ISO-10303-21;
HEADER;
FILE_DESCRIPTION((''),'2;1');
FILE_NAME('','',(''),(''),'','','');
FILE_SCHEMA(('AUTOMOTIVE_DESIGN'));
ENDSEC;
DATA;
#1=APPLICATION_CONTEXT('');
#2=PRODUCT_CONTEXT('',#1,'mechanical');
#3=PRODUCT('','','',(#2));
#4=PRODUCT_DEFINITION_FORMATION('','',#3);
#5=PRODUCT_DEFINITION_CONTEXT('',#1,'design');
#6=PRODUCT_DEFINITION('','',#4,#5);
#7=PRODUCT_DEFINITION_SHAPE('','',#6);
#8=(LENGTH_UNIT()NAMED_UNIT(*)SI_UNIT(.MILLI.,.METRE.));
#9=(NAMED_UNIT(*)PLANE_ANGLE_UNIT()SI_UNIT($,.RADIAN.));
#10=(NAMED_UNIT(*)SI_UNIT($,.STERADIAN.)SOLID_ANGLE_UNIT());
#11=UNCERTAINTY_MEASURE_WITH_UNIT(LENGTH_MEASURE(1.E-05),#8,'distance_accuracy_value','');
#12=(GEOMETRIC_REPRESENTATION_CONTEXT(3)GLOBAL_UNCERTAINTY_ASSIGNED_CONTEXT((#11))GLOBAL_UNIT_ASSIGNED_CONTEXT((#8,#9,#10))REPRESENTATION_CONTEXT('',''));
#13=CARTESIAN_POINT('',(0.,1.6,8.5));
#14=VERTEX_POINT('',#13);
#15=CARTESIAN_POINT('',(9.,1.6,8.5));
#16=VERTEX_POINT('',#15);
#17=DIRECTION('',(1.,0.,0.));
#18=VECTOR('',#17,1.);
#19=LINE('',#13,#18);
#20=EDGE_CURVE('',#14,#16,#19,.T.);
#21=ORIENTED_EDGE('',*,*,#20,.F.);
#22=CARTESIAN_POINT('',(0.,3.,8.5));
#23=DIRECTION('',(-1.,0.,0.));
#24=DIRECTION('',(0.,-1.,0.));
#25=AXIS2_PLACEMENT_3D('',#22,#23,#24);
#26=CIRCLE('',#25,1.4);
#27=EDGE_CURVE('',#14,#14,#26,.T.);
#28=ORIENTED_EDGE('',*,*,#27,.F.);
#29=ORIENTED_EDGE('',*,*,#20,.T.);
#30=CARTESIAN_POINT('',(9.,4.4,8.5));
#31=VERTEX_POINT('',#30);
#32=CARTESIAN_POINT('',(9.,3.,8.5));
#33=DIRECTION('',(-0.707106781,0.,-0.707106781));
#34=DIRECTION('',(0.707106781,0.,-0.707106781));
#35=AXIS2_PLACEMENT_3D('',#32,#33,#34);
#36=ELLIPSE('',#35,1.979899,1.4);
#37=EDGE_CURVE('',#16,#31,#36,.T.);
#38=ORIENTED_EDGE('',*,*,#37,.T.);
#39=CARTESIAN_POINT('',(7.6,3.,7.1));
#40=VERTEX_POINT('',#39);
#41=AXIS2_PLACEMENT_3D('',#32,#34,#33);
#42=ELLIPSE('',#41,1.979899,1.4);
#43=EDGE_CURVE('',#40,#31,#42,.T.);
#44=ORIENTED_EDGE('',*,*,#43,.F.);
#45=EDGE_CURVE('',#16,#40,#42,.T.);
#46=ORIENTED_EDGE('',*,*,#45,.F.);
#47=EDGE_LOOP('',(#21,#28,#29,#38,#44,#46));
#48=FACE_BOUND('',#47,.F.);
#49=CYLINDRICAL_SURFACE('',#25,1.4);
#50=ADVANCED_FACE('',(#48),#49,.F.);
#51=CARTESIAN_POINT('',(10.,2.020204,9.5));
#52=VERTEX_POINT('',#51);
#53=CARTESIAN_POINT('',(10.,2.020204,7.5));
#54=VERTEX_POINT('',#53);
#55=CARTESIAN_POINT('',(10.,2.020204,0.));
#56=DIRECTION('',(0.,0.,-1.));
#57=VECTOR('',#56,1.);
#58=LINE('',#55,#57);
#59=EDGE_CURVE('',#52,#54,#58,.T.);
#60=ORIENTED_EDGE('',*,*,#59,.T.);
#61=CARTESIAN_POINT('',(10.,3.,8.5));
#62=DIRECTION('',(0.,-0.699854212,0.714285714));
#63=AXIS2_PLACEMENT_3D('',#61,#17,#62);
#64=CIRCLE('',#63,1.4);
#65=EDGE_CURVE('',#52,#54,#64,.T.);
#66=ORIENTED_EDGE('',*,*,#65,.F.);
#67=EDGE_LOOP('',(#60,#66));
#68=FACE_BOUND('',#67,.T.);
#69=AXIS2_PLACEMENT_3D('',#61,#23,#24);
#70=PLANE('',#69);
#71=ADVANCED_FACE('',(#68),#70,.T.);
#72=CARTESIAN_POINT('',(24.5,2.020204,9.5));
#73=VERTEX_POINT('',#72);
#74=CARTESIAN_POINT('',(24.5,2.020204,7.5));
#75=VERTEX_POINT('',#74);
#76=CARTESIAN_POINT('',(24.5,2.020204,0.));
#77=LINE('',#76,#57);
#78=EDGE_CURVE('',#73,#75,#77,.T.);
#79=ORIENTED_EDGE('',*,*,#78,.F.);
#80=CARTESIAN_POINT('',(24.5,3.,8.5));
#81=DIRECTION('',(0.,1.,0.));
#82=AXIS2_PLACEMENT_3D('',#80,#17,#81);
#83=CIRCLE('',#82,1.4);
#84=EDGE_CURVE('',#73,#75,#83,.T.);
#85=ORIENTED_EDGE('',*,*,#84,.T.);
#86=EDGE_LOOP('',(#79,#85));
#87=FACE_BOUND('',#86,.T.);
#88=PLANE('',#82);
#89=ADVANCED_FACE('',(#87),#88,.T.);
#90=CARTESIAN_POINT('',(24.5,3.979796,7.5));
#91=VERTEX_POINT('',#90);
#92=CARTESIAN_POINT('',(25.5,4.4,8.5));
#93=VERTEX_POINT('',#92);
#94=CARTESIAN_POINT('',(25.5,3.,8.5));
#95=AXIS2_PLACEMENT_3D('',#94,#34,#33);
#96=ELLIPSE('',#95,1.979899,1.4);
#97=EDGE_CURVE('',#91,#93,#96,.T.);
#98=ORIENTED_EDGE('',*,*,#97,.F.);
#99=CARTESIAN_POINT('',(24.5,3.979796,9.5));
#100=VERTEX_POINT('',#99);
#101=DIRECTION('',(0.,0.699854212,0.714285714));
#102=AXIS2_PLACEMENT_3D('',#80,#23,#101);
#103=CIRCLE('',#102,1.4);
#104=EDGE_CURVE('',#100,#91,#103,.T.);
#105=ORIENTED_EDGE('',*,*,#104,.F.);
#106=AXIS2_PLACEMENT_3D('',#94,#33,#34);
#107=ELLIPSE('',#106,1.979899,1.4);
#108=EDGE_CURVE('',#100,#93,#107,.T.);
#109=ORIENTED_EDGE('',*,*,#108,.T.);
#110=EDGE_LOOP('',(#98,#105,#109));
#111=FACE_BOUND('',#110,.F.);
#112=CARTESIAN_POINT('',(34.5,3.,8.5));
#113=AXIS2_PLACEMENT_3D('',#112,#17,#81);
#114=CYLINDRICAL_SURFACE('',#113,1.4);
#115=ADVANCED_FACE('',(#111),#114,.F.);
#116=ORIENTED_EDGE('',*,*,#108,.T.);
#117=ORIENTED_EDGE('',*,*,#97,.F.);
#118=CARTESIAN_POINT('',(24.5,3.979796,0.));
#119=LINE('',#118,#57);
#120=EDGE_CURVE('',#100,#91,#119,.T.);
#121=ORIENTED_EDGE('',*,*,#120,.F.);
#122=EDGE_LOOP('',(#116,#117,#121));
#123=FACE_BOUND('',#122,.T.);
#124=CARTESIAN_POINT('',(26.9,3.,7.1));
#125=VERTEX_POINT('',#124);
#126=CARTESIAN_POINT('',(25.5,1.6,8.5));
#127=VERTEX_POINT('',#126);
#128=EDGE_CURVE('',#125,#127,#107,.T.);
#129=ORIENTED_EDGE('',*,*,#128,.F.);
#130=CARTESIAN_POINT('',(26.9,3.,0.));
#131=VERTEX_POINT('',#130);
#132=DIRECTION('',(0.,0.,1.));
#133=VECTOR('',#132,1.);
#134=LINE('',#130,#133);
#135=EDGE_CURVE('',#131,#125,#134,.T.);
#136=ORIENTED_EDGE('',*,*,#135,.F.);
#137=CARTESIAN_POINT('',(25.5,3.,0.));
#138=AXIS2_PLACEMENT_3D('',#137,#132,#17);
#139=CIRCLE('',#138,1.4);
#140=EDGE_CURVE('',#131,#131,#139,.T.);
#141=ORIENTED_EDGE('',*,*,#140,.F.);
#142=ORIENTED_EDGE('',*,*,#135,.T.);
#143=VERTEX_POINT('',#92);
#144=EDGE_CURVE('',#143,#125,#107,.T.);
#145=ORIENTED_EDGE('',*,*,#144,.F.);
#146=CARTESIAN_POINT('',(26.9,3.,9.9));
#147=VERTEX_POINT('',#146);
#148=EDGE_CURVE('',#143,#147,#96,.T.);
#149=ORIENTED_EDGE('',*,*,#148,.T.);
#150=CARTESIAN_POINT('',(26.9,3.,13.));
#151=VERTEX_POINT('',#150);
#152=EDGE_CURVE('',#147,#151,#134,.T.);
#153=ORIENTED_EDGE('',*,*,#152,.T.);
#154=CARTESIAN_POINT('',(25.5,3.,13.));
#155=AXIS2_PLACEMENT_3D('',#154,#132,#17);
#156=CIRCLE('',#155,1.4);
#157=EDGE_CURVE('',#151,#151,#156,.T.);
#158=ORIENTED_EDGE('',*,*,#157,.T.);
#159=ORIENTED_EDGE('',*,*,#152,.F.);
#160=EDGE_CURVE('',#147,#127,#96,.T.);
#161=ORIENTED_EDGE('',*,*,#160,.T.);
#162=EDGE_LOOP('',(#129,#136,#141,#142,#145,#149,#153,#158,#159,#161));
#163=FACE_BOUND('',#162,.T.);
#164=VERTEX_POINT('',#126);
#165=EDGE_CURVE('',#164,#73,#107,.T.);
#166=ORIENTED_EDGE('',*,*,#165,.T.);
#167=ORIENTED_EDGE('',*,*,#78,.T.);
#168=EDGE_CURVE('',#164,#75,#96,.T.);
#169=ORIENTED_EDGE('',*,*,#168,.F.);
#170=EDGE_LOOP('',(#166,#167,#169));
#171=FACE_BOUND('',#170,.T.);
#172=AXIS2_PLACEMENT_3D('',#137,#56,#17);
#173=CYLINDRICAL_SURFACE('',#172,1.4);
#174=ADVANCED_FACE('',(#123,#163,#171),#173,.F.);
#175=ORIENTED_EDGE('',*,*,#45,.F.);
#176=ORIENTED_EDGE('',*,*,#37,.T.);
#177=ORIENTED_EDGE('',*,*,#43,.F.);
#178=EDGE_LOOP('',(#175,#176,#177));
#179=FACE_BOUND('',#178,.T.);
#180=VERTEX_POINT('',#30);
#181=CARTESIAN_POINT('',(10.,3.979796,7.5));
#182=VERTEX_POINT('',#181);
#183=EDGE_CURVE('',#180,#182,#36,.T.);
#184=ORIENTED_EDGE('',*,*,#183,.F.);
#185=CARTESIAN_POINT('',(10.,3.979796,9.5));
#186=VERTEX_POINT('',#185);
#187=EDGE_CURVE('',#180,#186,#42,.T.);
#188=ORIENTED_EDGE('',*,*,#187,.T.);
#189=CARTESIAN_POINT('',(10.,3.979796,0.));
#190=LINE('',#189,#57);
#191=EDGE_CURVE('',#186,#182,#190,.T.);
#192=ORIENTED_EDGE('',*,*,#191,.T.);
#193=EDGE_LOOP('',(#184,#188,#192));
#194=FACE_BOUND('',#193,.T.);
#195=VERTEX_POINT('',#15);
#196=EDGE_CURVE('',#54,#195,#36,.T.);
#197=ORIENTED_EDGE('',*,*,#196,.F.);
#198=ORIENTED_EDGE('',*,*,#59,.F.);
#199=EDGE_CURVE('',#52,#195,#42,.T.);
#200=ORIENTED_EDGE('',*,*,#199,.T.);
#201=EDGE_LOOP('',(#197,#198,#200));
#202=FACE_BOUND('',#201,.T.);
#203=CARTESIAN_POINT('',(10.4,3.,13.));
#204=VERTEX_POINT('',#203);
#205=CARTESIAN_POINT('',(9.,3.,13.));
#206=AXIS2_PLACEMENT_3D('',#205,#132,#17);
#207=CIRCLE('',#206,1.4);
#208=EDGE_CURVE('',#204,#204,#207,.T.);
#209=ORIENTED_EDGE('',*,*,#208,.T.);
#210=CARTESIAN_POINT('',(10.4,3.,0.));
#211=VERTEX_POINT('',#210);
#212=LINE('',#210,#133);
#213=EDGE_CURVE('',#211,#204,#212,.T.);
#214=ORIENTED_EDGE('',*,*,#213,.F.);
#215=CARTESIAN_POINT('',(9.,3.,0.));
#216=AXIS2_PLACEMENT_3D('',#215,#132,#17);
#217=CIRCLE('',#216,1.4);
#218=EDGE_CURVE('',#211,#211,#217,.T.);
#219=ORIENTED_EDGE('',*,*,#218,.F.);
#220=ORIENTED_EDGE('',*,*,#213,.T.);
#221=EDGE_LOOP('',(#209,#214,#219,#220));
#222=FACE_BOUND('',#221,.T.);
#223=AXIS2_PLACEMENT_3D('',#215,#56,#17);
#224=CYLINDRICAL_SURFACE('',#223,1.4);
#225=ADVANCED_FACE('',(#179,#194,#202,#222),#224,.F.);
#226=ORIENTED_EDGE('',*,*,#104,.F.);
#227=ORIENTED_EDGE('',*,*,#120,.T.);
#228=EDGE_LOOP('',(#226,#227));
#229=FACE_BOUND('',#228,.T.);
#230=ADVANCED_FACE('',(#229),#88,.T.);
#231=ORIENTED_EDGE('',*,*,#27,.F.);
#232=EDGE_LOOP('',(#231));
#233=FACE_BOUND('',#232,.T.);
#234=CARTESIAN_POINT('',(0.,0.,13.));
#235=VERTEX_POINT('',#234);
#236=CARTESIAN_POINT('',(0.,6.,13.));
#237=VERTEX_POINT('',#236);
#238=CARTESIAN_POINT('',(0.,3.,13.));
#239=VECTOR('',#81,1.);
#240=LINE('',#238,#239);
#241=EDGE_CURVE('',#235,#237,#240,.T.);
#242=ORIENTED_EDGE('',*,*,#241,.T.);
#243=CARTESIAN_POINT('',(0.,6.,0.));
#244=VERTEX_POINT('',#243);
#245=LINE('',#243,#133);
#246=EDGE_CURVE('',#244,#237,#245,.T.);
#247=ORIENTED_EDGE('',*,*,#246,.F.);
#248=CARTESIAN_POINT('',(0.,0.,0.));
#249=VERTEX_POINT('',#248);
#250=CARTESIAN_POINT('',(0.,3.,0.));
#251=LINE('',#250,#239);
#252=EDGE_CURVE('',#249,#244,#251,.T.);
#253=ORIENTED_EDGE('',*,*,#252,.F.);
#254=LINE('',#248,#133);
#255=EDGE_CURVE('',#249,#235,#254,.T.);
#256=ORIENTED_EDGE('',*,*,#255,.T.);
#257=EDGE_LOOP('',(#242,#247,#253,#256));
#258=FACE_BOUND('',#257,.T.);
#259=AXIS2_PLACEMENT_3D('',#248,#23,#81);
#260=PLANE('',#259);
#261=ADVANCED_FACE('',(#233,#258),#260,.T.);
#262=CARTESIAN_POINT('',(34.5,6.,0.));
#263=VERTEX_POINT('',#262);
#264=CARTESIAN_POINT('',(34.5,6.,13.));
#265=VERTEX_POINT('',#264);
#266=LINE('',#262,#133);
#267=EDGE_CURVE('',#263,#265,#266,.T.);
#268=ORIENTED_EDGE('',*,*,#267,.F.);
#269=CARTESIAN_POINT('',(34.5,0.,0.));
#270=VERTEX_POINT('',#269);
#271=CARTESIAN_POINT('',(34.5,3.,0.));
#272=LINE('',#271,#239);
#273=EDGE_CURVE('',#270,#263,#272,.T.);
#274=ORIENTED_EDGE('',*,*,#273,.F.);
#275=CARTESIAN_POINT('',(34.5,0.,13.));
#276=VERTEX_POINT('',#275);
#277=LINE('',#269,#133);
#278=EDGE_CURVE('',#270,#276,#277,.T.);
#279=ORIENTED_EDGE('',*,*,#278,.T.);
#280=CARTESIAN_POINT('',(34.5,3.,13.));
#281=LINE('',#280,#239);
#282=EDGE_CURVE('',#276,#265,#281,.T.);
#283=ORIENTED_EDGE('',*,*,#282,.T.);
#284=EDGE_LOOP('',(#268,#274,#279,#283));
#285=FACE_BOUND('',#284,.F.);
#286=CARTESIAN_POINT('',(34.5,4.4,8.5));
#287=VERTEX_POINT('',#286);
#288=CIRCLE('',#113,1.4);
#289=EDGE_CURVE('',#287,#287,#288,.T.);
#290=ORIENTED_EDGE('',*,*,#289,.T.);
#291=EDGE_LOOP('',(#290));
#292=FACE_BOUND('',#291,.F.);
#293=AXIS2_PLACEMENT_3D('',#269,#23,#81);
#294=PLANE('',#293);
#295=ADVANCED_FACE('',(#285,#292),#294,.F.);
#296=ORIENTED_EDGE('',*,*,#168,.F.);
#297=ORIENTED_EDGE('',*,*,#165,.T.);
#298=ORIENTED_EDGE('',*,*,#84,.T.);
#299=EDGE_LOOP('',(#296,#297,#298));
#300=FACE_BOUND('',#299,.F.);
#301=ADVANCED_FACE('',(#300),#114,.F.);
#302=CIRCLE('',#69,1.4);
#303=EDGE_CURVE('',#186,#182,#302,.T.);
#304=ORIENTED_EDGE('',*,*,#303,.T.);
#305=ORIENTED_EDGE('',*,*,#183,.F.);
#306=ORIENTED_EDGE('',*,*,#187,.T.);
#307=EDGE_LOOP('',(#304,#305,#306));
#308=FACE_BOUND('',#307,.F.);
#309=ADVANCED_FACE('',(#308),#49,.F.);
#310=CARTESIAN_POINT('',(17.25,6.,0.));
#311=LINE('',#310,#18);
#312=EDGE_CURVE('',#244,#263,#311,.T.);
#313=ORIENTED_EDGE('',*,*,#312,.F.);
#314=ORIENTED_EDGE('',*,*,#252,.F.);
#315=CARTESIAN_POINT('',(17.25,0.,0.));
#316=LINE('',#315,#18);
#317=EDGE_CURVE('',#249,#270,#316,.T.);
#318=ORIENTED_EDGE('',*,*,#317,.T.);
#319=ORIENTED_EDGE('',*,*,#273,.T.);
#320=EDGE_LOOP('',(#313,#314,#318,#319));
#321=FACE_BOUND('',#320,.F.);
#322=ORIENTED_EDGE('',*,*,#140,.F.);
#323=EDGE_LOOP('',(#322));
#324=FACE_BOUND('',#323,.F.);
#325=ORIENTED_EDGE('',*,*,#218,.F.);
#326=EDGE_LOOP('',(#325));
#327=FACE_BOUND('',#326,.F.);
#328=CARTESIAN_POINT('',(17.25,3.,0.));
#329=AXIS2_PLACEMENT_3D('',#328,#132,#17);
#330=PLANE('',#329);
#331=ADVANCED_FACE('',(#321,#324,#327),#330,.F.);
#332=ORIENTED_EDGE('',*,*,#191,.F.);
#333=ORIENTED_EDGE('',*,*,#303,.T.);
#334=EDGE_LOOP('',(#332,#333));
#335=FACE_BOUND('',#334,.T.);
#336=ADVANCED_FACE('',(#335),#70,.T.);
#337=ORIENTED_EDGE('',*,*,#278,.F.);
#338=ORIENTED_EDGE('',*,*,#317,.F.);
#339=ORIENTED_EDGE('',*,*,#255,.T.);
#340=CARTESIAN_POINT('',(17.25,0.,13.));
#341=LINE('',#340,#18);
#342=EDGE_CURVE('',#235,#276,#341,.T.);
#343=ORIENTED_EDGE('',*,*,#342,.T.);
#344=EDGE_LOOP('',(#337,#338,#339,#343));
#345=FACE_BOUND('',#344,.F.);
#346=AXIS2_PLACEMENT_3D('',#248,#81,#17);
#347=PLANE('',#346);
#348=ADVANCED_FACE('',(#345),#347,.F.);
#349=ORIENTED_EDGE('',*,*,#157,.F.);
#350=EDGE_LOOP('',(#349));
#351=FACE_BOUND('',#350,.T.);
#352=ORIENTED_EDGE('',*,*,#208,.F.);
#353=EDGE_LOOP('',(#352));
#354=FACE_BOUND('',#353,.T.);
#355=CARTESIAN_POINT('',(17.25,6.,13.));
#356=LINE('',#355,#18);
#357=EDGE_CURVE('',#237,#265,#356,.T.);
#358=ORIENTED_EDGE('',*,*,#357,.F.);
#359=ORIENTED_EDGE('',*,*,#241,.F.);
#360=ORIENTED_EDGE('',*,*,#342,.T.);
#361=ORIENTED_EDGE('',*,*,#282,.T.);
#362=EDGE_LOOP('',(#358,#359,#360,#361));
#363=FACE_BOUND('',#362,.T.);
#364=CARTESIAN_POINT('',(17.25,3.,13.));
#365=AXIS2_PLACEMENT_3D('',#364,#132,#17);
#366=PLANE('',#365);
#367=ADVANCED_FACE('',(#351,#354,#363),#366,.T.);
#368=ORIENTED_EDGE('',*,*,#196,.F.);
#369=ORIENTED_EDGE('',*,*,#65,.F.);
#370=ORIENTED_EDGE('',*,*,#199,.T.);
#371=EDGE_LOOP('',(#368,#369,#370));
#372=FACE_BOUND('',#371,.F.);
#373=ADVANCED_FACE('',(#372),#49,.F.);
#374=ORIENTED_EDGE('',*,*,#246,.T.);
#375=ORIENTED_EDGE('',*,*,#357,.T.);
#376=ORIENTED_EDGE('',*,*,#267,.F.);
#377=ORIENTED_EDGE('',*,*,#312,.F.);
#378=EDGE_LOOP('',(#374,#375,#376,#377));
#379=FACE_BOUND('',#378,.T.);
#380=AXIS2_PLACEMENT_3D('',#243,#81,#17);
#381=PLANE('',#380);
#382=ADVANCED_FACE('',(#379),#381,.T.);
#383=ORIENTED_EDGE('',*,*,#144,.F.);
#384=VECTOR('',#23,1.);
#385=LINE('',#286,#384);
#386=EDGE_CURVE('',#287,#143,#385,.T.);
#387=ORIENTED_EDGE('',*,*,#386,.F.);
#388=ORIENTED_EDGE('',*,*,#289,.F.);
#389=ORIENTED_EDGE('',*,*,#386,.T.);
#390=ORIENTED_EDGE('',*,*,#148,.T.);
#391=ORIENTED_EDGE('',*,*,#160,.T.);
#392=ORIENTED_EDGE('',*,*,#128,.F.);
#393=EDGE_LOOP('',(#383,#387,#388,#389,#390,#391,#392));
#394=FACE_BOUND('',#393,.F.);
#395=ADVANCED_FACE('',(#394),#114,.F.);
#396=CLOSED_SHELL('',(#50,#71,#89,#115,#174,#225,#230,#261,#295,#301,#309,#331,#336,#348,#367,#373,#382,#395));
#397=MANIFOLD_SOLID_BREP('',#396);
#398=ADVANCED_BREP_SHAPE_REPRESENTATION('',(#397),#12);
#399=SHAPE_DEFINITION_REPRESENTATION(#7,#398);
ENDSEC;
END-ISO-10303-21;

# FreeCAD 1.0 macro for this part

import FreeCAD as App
import Part
import Sketcher
from FreeCAD import Vector

doc = App.newDocument("Part")
params = doc.addObject("Spreadsheet::Sheet", "Params")
for row, (alias, value) in enumerate([
    ("sketch1_diameter", "2.8 mm"),
    ("sketch1_height", "6 mm"),
    ("sketch1_width", "34.5 mm"),
    ("pad1_length", "13 mm"),
    ("sketch2_diameter", "2.8 mm"),
    ("pocket1_length", "10 mm"),
    ("sketch3_diameter", "2.8 mm"),
    ("pocket2_length", "10 mm"),
], start=1):
    params.set(f"A{row}", alias)
    params.set(f"B{row}", "=" + value)
    params.setAlias(f"B{row}", alias)

body = doc.addObject("PartDesign::Body", "Body")

sketch1 = doc.addObject("Sketcher::SketchObject", "Sketch")
body.addObject(sketch1)
sketch1.AttachmentSupport = (doc.XY_Plane, [""])
sketch1.MapMode = "FlatFace"
sketch1.addGeometry(Part.LineSegment(Vector(0, 6, 0), Vector(0, 0, 0)), False)
sketch1.addGeometry(Part.LineSegment(Vector(0, 0, 0), Vector(34.5, 0, 0)), False)
sketch1.addGeometry(Part.LineSegment(Vector(34.5, 0, 0), Vector(34.5, 6, 0)), False)
sketch1.addGeometry(Part.LineSegment(Vector(34.5, 6, 0), Vector(0, 6, 0)), False)
sketch1.addGeometry(Part.Circle(Vector(9, 3, 0), Vector(0, 0, 1), 1.4), False)
sketch1.addGeometry(Part.Circle(Vector(25.5, 3, 0), Vector(0, 0, 1), 1.4), False)
sketch1.addConstraint(Sketcher.Constraint("Coincident", 0, 2, 1, 1))
sketch1.addConstraint(Sketcher.Constraint("Coincident", 1, 2, 2, 1))
sketch1.addConstraint(Sketcher.Constraint("Coincident", 2, 2, 3, 1))
sketch1.addConstraint(Sketcher.Constraint("Coincident", 3, 2, 0, 1))
sketch1.addConstraint(Sketcher.Constraint("Vertical", 0))
sketch1.addConstraint(Sketcher.Constraint("Horizontal", 1))
sketch1.addConstraint(Sketcher.Constraint("Vertical", 2))
sketch1.addConstraint(Sketcher.Constraint("Horizontal", 3))
sketch1.addConstraint(Sketcher.Constraint("Coincident", 0, 2, -1, 1))
sketch1.addConstraint(Sketcher.Constraint("Equal", 4, 5))
sketch1.addConstraint(Sketcher.Constraint("Horizontal", 4, 3, 5, 3))
sketch1.addConstraint(Sketcher.Constraint("Diameter", 4, 2.8))
sketch1.addConstraint(Sketcher.Constraint("DistanceY", 0, 2, 0, 1, 6.0))
sketch1.addConstraint(Sketcher.Constraint("DistanceX", 1, 1, 1, 2, 34.5))
sketch1.addConstraint(Sketcher.Constraint("DistanceX", -1, 1, 4, 3, 9.0))
sketch1.addConstraint(Sketcher.Constraint("DistanceY", -1, 1, 4, 3, 3.0))
sketch1.addConstraint(Sketcher.Constraint("DistanceX", 5, 3, 1, 2, 9.0))
sketch1.setExpression("Constraints[11]", "Params.sketch1_diameter")
sketch1.setExpression("Constraints[12]", "Params.sketch1_height")
sketch1.setExpression("Constraints[13]", "Params.sketch1_width")
pad1 = doc.addObject("PartDesign::Pad", "Pad")
body.addObject(pad1)
pad1.Profile = sketch1
pad1.setExpression("Length", "Params.pad1_length")

sketch2 = doc.addObject("Sketcher::SketchObject", "Sketch001")
body.addObject(sketch2)
sketch2.AttachmentSupport = (doc.YZ_Plane, [""])
sketch2.MapMode = "FlatFace"
sketch2.addGeometry(Part.Circle(Vector(3, 8.5, 0), Vector(0, 0, 1), 1.4), False)
sketch2.addConstraint(Sketcher.Constraint("Diameter", 0, 2.8))
sketch2.addConstraint(Sketcher.Constraint("DistanceX", -1, 1, 0, 3, 3.0))
sketch2.addConstraint(Sketcher.Constraint("DistanceY", -1, 1, 0, 3, 8.5))
sketch2.setExpression("Constraints[0]", "Params.sketch2_diameter")
pocket1 = doc.addObject("PartDesign::Pocket", "Pocket")
body.addObject(pocket1)
pocket1.Profile = sketch2
pocket1.setExpression("Length", "Params.pocket1_length")
pocket1.Reversed = True

sketch3 = doc.addObject("Sketcher::SketchObject", "Sketch002")
body.addObject(sketch3)
sketch3.AttachmentSupport = (doc.YZ_Plane, [""])
sketch3.MapMode = "FlatFace"
sketch3.AttachmentOffset = App.Placement(Vector(0, 0, 34.5), App.Rotation())
sketch3.addGeometry(Part.Circle(Vector(3, 8.5, 0), Vector(0, 0, 1), 1.4), False)
sketch3.addConstraint(Sketcher.Constraint("Diameter", 0, 2.8))
sketch3.addConstraint(Sketcher.Constraint("DistanceX", -1, 1, 0, 3, 3.0))
sketch3.addConstraint(Sketcher.Constraint("DistanceY", -1, 1, 0, 3, 8.5))
sketch3.setExpression("Constraints[0]", "Params.sketch3_diameter")
pocket2 = doc.addObject("PartDesign::Pocket", "Pocket001")
body.addObject(pocket2)
pocket2.Profile = sketch3
pocket2.setExpression("Length", "Params.pocket2_length")

doc.recompute()
